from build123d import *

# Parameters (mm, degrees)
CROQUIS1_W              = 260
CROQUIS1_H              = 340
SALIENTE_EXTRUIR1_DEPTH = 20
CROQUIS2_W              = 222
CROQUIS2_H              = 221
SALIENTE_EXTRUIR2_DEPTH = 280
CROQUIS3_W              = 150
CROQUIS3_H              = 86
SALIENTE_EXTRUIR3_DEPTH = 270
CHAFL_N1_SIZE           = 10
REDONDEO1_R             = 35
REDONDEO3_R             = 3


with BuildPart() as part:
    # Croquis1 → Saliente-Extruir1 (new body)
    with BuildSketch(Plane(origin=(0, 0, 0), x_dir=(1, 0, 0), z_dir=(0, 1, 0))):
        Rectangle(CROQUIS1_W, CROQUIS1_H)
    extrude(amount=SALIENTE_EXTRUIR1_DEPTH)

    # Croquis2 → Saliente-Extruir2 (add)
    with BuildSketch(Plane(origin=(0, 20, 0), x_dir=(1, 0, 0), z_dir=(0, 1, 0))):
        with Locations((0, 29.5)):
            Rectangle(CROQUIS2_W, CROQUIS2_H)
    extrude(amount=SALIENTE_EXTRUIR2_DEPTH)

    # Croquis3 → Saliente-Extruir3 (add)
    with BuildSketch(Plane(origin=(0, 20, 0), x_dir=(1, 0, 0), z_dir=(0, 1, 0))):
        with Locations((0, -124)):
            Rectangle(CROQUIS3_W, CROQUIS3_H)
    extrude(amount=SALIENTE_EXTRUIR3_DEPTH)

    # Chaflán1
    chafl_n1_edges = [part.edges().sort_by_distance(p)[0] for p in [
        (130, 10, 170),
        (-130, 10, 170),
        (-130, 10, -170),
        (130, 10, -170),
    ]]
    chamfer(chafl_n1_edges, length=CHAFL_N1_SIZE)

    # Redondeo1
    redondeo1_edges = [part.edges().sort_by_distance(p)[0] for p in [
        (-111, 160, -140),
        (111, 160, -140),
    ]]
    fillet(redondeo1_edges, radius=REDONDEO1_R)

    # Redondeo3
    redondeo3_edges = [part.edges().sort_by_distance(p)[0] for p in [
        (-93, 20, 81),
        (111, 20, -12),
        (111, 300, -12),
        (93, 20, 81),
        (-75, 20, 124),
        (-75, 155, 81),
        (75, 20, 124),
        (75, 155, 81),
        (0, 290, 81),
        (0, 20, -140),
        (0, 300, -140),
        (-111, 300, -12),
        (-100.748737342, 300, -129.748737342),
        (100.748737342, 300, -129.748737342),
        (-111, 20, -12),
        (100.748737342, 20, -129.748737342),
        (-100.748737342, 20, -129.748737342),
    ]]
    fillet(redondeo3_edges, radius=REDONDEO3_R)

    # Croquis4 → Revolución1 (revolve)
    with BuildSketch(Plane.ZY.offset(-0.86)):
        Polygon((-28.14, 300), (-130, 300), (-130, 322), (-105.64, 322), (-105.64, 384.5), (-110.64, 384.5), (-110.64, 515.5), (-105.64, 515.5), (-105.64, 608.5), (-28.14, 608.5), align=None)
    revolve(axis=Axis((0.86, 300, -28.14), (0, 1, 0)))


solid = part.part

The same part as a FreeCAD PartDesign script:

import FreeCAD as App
import Part
import Sketcher
from FreeCAD import Vector
Q = App.Units.Quantity


def edges_at(feature, points):
    """Names of the edges that pass closest to the given points."""
    edges = feature.Shape.Edges
    near = lambda p: min(range(len(edges)), key=lambda i: edges[i].distToShape(Part.Vertex(*p))[0])
    return sorted({f"Edge{near(p) + 1}" for p in points})

doc = App.newDocument("Part")
body = doc.addObject("PartDesign::Body", "Body")

sketch1 = body.newObject("Sketcher::SketchObject", "Sketch")
sketch1.AttachmentSupport = (doc.getObject("XZ_Plane"), [""])
sketch1.MapMode = "FlatFace"
sketch1.addGeometry([
    Part.LineSegment(Vector(-130, -170, 0), Vector(-130, 170, 0)),
    Part.LineSegment(Vector(-130, 170, 0), Vector(130, 170, 0)),
    Part.LineSegment(Vector(130, 170, 0), Vector(130, -170, 0)),
    Part.LineSegment(Vector(130, -170, 0), Vector(-130, -170, 0)),
], False)
sketch1.addConstraint([
    Sketcher.Constraint("Coincident", 0, 2, 1, 1),
    Sketcher.Constraint("Coincident", 1, 2, 2, 1),
    Sketcher.Constraint("Coincident", 2, 2, 3, 1),
    Sketcher.Constraint("Coincident", 3, 2, 0, 1),
    Sketcher.Constraint("Vertical", 0),
    Sketcher.Constraint("Horizontal", 1),
    Sketcher.Constraint("Vertical", 2),
    Sketcher.Constraint("Horizontal", 3),
    Sketcher.Constraint("Symmetric", 0, 2, 2, 2, -1, 1),
    Sketcher.Constraint("DistanceX", 1, 1, 1, 2, Q("260 mm")),
    Sketcher.Constraint("DistanceY", 0, 1, 0, 2, Q("340 mm")),
])
pad1 = body.newObject("PartDesign::Pad", "Pad")
pad1.Profile = sketch1
pad1.Length = 20
pad1.Reversed = True

sketch2 = body.newObject("Sketcher::SketchObject", "Sketch001")
sketch2.AttachmentSupport = (doc.getObject("XZ_Plane"), [""])
sketch2.MapMode = "FlatFace"
sketch2.AttachmentOffset = App.Placement(Vector(0, 0, -20), App.Rotation())
sketch2.addGeometry([
    Part.LineSegment(Vector(-111, -140, 0), Vector(-111, 81, 0)),
    Part.LineSegment(Vector(-111, 81, 0), Vector(111, 81, 0)),
    Part.LineSegment(Vector(111, 81, 0), Vector(111, -140, 0)),
    Part.LineSegment(Vector(111, -140, 0), Vector(-111, -140, 0)),
], False)
sketch2.addConstraint([
    Sketcher.Constraint("Coincident", 0, 2, 1, 1),
    Sketcher.Constraint("Coincident", 1, 2, 2, 1),
    Sketcher.Constraint("Coincident", 2, 2, 3, 1),
    Sketcher.Constraint("Coincident", 3, 2, 0, 1),
    Sketcher.Constraint("Vertical", 0),
    Sketcher.Constraint("Horizontal", 1),
    Sketcher.Constraint("Vertical", 2),
    Sketcher.Constraint("Horizontal", 3),
    Sketcher.Constraint("DistanceX", 1, 1, 1, 2, Q("222 mm")),
    Sketcher.Constraint("DistanceY", 0, 1, 0, 2, Q("221 mm")),
    Sketcher.Constraint("DistanceX", 0, 2, -1, 1, Q("111 mm")),
    Sketcher.Constraint("DistanceY", -1, 1, 0, 2, Q("81 mm")),
])
pad2 = body.newObject("PartDesign::Pad", "Pad001")
pad2.Profile = sketch2
pad2.Length = 280
pad2.Reversed = True

sketch3 = body.newObject("Sketcher::SketchObject", "Sketch002")
sketch3.AttachmentSupport = (doc.getObject("XZ_Plane"), [""])
sketch3.MapMode = "FlatFace"
sketch3.AttachmentOffset = App.Placement(Vector(0, 0, -20), App.Rotation())
sketch3.addGeometry([
    Part.LineSegment(Vector(-75, 81, 0), Vector(-75, 167, 0)),
    Part.LineSegment(Vector(-75, 167, 0), Vector(75, 167, 0)),
    Part.LineSegment(Vector(75, 167, 0), Vector(75, 81, 0)),
    Part.LineSegment(Vector(75, 81, 0), Vector(-75, 81, 0)),
], False)
sketch3.addConstraint([
    Sketcher.Constraint("Coincident", 0, 2, 1, 1),
    Sketcher.Constraint("Coincident", 1, 2, 2, 1),
    Sketcher.Constraint("Coincident", 2, 2, 3, 1),
    Sketcher.Constraint("Coincident", 3, 2, 0, 1),
    Sketcher.Constraint("Vertical", 0),
    Sketcher.Constraint("Horizontal", 1),
    Sketcher.Constraint("Vertical", 2),
    Sketcher.Constraint("Horizontal", 3),
    Sketcher.Constraint("DistanceX", 1, 1, 1, 2, Q("150 mm")),
    Sketcher.Constraint("DistanceY", 0, 1, 0, 2, Q("86 mm")),
    Sketcher.Constraint("DistanceX", 0, 2, -1, 1, Q("75 mm")),
    Sketcher.Constraint("DistanceY", -1, 1, 0, 2, Q("167 mm")),
])
pad3 = body.newObject("PartDesign::Pad", "Pad002")
pad3.Profile = sketch3
pad3.Length = 270
pad3.Reversed = True
doc.recompute()

chamfer = body.newObject("PartDesign::Chamfer", "Chamfer")
chamfer.Base = (pad3, edges_at(pad3, [
    (130, 10, 170),
    (-130, 10, 170),
    (-130, 10, -170),
    (130, 10, -170),
]))
chamfer.Size = 10
doc.recompute()

fillet = body.newObject("PartDesign::Fillet", "Fillet")
fillet.Base = (chamfer, edges_at(chamfer, [(-111, 160, -140), (111, 160, -140)]))
fillet.Radius = 35
doc.recompute()

fillet2 = body.newObject("PartDesign::Fillet", "Fillet001")
fillet2.Base = (fillet, edges_at(fillet, [
    (-93, 20, 81),
    (111, 20, -12),
    (111, 300, -12),
    (93, 20, 81),
    (-75, 20, 124),
    (-75, 155, 81),
    (75, 20, 124),
    (75, 155, 81),
    (0, 290, 81),
    (0, 20, -140),
    (0, 300, -140),
    (-111, 300, -12),
    (-100.749, 300, -129.749),
    (100.749, 300, -129.749),
    (-111, 20, -12),
    (100.749, 20, -129.749),
    (-100.749, 20, -129.749),
]))
fillet2.Radius = 3

sketch4 = body.newObject("Sketcher::SketchObject", "Sketch003")
sketch4.AttachmentSupport = (doc.getObject("YZ_Plane"), [""])
sketch4.MapMode = "FlatFace"
sketch4.AttachmentOffset = App.Placement(Vector(0, 0, 0.86), App.Rotation())
sketch4.addGeometry([
    Part.LineSegment(Vector(300, -130, 0), Vector(300, -28.14, 0)),
    Part.LineSegment(Vector(300, -28.14, 0), Vector(608.5, -28.14, 0)),
    Part.LineSegment(Vector(608.5, -28.14, 0), Vector(608.5, -105.64, 0)),
    Part.LineSegment(Vector(608.5, -105.64, 0), Vector(515.5, -105.64, 0)),
    Part.LineSegment(Vector(515.5, -105.64, 0), Vector(515.5, -110.64, 0)),
    Part.LineSegment(Vector(515.5, -110.64, 0), Vector(384.5, -110.64, 0)),
    Part.LineSegment(Vector(384.5, -110.64, 0), Vector(384.5, -105.64, 0)),
    Part.LineSegment(Vector(384.5, -105.64, 0), Vector(322, -105.64, 0)),
    Part.LineSegment(Vector(322, -105.64, 0), Vector(322, -130, 0)),
    Part.LineSegment(Vector(322, -130, 0), Vector(300, -130, 0)),
], False)
sketch4.addGeometry(Part.LineSegment(Vector(300, -28.14, 0), Vector(608.5, -28.14, 0)), True)
sketch4.addConstraint([
    Sketcher.Constraint("Coincident", 0, 2, 1, 1),
    Sketcher.Constraint("Coincident", 1, 2, 2, 1),
    Sketcher.Constraint("Coincident", 2, 2, 3, 1),
    Sketcher.Constraint("Coincident", 3, 2, 4, 1),
    Sketcher.Constraint("Coincident", 4, 2, 5, 1),
    Sketcher.Constraint("Coincident", 5, 2, 6, 1),
    Sketcher.Constraint("Coincident", 6, 2, 7, 1),
    Sketcher.Constraint("Coincident", 7, 2, 8, 1),
    Sketcher.Constraint("Coincident", 8, 2, 9, 1),
    Sketcher.Constraint("Coincident", 9, 2, 0, 1),
    Sketcher.Constraint("Vertical", 0),
    Sketcher.Constraint("Horizontal", 1),
    Sketcher.Constraint("Vertical", 2),
    Sketcher.Constraint("Horizontal", 3),
    Sketcher.Constraint("Vertical", 4),
    Sketcher.Constraint("Horizontal", 5),
    Sketcher.Constraint("Vertical", 6),
    Sketcher.Constraint("Horizontal", 7),
    Sketcher.Constraint("Vertical", 8),
    Sketcher.Constraint("Horizontal", 9),
    Sketcher.Constraint("Horizontal", 10),
    Sketcher.Constraint("Coincident", 10, 1, 0, 2),
    Sketcher.Constraint("Horizontal", 3, 2, 6, 2),
    Sketcher.Constraint("Vertical", 2, 2, 10, 2),
    Sketcher.Constraint("DistanceX", 3, 2, 3, 1, Q("93 mm")),
    Sketcher.Constraint("DistanceX", 5, 2, 5, 1, Q("131 mm")),
    Sketcher.Constraint("DistanceX", 9, 2, 9, 1, Q("22 mm")),
    Sketcher.Constraint("DistanceY", 4, 2, 4, 1, Q("5 mm")),
    Sketcher.Constraint("DistanceX", 1, 1, 1, 2, Q("308.5 mm")),
    Sketcher.Constraint("DistanceY", 2, 2, 2, 1, Q("77.5 mm")),
    Sketcher.Constraint("DistanceX", -1, 1, 0, 2, Q("300 mm")),
    Sketcher.Constraint("DistanceY", 8, 2, -1, 1, Q("130 mm")),
    Sketcher.Constraint("DistanceY", 0, 1, 0, 2, Q("101.86 mm")),
])
revolution = body.newObject("PartDesign::Revolution", "Revolution")
revolution.Profile = sketch4
revolution.ReferenceAxis = (sketch4, ["Axis0"])
revolution.Angle = 360

doc.recompute()
